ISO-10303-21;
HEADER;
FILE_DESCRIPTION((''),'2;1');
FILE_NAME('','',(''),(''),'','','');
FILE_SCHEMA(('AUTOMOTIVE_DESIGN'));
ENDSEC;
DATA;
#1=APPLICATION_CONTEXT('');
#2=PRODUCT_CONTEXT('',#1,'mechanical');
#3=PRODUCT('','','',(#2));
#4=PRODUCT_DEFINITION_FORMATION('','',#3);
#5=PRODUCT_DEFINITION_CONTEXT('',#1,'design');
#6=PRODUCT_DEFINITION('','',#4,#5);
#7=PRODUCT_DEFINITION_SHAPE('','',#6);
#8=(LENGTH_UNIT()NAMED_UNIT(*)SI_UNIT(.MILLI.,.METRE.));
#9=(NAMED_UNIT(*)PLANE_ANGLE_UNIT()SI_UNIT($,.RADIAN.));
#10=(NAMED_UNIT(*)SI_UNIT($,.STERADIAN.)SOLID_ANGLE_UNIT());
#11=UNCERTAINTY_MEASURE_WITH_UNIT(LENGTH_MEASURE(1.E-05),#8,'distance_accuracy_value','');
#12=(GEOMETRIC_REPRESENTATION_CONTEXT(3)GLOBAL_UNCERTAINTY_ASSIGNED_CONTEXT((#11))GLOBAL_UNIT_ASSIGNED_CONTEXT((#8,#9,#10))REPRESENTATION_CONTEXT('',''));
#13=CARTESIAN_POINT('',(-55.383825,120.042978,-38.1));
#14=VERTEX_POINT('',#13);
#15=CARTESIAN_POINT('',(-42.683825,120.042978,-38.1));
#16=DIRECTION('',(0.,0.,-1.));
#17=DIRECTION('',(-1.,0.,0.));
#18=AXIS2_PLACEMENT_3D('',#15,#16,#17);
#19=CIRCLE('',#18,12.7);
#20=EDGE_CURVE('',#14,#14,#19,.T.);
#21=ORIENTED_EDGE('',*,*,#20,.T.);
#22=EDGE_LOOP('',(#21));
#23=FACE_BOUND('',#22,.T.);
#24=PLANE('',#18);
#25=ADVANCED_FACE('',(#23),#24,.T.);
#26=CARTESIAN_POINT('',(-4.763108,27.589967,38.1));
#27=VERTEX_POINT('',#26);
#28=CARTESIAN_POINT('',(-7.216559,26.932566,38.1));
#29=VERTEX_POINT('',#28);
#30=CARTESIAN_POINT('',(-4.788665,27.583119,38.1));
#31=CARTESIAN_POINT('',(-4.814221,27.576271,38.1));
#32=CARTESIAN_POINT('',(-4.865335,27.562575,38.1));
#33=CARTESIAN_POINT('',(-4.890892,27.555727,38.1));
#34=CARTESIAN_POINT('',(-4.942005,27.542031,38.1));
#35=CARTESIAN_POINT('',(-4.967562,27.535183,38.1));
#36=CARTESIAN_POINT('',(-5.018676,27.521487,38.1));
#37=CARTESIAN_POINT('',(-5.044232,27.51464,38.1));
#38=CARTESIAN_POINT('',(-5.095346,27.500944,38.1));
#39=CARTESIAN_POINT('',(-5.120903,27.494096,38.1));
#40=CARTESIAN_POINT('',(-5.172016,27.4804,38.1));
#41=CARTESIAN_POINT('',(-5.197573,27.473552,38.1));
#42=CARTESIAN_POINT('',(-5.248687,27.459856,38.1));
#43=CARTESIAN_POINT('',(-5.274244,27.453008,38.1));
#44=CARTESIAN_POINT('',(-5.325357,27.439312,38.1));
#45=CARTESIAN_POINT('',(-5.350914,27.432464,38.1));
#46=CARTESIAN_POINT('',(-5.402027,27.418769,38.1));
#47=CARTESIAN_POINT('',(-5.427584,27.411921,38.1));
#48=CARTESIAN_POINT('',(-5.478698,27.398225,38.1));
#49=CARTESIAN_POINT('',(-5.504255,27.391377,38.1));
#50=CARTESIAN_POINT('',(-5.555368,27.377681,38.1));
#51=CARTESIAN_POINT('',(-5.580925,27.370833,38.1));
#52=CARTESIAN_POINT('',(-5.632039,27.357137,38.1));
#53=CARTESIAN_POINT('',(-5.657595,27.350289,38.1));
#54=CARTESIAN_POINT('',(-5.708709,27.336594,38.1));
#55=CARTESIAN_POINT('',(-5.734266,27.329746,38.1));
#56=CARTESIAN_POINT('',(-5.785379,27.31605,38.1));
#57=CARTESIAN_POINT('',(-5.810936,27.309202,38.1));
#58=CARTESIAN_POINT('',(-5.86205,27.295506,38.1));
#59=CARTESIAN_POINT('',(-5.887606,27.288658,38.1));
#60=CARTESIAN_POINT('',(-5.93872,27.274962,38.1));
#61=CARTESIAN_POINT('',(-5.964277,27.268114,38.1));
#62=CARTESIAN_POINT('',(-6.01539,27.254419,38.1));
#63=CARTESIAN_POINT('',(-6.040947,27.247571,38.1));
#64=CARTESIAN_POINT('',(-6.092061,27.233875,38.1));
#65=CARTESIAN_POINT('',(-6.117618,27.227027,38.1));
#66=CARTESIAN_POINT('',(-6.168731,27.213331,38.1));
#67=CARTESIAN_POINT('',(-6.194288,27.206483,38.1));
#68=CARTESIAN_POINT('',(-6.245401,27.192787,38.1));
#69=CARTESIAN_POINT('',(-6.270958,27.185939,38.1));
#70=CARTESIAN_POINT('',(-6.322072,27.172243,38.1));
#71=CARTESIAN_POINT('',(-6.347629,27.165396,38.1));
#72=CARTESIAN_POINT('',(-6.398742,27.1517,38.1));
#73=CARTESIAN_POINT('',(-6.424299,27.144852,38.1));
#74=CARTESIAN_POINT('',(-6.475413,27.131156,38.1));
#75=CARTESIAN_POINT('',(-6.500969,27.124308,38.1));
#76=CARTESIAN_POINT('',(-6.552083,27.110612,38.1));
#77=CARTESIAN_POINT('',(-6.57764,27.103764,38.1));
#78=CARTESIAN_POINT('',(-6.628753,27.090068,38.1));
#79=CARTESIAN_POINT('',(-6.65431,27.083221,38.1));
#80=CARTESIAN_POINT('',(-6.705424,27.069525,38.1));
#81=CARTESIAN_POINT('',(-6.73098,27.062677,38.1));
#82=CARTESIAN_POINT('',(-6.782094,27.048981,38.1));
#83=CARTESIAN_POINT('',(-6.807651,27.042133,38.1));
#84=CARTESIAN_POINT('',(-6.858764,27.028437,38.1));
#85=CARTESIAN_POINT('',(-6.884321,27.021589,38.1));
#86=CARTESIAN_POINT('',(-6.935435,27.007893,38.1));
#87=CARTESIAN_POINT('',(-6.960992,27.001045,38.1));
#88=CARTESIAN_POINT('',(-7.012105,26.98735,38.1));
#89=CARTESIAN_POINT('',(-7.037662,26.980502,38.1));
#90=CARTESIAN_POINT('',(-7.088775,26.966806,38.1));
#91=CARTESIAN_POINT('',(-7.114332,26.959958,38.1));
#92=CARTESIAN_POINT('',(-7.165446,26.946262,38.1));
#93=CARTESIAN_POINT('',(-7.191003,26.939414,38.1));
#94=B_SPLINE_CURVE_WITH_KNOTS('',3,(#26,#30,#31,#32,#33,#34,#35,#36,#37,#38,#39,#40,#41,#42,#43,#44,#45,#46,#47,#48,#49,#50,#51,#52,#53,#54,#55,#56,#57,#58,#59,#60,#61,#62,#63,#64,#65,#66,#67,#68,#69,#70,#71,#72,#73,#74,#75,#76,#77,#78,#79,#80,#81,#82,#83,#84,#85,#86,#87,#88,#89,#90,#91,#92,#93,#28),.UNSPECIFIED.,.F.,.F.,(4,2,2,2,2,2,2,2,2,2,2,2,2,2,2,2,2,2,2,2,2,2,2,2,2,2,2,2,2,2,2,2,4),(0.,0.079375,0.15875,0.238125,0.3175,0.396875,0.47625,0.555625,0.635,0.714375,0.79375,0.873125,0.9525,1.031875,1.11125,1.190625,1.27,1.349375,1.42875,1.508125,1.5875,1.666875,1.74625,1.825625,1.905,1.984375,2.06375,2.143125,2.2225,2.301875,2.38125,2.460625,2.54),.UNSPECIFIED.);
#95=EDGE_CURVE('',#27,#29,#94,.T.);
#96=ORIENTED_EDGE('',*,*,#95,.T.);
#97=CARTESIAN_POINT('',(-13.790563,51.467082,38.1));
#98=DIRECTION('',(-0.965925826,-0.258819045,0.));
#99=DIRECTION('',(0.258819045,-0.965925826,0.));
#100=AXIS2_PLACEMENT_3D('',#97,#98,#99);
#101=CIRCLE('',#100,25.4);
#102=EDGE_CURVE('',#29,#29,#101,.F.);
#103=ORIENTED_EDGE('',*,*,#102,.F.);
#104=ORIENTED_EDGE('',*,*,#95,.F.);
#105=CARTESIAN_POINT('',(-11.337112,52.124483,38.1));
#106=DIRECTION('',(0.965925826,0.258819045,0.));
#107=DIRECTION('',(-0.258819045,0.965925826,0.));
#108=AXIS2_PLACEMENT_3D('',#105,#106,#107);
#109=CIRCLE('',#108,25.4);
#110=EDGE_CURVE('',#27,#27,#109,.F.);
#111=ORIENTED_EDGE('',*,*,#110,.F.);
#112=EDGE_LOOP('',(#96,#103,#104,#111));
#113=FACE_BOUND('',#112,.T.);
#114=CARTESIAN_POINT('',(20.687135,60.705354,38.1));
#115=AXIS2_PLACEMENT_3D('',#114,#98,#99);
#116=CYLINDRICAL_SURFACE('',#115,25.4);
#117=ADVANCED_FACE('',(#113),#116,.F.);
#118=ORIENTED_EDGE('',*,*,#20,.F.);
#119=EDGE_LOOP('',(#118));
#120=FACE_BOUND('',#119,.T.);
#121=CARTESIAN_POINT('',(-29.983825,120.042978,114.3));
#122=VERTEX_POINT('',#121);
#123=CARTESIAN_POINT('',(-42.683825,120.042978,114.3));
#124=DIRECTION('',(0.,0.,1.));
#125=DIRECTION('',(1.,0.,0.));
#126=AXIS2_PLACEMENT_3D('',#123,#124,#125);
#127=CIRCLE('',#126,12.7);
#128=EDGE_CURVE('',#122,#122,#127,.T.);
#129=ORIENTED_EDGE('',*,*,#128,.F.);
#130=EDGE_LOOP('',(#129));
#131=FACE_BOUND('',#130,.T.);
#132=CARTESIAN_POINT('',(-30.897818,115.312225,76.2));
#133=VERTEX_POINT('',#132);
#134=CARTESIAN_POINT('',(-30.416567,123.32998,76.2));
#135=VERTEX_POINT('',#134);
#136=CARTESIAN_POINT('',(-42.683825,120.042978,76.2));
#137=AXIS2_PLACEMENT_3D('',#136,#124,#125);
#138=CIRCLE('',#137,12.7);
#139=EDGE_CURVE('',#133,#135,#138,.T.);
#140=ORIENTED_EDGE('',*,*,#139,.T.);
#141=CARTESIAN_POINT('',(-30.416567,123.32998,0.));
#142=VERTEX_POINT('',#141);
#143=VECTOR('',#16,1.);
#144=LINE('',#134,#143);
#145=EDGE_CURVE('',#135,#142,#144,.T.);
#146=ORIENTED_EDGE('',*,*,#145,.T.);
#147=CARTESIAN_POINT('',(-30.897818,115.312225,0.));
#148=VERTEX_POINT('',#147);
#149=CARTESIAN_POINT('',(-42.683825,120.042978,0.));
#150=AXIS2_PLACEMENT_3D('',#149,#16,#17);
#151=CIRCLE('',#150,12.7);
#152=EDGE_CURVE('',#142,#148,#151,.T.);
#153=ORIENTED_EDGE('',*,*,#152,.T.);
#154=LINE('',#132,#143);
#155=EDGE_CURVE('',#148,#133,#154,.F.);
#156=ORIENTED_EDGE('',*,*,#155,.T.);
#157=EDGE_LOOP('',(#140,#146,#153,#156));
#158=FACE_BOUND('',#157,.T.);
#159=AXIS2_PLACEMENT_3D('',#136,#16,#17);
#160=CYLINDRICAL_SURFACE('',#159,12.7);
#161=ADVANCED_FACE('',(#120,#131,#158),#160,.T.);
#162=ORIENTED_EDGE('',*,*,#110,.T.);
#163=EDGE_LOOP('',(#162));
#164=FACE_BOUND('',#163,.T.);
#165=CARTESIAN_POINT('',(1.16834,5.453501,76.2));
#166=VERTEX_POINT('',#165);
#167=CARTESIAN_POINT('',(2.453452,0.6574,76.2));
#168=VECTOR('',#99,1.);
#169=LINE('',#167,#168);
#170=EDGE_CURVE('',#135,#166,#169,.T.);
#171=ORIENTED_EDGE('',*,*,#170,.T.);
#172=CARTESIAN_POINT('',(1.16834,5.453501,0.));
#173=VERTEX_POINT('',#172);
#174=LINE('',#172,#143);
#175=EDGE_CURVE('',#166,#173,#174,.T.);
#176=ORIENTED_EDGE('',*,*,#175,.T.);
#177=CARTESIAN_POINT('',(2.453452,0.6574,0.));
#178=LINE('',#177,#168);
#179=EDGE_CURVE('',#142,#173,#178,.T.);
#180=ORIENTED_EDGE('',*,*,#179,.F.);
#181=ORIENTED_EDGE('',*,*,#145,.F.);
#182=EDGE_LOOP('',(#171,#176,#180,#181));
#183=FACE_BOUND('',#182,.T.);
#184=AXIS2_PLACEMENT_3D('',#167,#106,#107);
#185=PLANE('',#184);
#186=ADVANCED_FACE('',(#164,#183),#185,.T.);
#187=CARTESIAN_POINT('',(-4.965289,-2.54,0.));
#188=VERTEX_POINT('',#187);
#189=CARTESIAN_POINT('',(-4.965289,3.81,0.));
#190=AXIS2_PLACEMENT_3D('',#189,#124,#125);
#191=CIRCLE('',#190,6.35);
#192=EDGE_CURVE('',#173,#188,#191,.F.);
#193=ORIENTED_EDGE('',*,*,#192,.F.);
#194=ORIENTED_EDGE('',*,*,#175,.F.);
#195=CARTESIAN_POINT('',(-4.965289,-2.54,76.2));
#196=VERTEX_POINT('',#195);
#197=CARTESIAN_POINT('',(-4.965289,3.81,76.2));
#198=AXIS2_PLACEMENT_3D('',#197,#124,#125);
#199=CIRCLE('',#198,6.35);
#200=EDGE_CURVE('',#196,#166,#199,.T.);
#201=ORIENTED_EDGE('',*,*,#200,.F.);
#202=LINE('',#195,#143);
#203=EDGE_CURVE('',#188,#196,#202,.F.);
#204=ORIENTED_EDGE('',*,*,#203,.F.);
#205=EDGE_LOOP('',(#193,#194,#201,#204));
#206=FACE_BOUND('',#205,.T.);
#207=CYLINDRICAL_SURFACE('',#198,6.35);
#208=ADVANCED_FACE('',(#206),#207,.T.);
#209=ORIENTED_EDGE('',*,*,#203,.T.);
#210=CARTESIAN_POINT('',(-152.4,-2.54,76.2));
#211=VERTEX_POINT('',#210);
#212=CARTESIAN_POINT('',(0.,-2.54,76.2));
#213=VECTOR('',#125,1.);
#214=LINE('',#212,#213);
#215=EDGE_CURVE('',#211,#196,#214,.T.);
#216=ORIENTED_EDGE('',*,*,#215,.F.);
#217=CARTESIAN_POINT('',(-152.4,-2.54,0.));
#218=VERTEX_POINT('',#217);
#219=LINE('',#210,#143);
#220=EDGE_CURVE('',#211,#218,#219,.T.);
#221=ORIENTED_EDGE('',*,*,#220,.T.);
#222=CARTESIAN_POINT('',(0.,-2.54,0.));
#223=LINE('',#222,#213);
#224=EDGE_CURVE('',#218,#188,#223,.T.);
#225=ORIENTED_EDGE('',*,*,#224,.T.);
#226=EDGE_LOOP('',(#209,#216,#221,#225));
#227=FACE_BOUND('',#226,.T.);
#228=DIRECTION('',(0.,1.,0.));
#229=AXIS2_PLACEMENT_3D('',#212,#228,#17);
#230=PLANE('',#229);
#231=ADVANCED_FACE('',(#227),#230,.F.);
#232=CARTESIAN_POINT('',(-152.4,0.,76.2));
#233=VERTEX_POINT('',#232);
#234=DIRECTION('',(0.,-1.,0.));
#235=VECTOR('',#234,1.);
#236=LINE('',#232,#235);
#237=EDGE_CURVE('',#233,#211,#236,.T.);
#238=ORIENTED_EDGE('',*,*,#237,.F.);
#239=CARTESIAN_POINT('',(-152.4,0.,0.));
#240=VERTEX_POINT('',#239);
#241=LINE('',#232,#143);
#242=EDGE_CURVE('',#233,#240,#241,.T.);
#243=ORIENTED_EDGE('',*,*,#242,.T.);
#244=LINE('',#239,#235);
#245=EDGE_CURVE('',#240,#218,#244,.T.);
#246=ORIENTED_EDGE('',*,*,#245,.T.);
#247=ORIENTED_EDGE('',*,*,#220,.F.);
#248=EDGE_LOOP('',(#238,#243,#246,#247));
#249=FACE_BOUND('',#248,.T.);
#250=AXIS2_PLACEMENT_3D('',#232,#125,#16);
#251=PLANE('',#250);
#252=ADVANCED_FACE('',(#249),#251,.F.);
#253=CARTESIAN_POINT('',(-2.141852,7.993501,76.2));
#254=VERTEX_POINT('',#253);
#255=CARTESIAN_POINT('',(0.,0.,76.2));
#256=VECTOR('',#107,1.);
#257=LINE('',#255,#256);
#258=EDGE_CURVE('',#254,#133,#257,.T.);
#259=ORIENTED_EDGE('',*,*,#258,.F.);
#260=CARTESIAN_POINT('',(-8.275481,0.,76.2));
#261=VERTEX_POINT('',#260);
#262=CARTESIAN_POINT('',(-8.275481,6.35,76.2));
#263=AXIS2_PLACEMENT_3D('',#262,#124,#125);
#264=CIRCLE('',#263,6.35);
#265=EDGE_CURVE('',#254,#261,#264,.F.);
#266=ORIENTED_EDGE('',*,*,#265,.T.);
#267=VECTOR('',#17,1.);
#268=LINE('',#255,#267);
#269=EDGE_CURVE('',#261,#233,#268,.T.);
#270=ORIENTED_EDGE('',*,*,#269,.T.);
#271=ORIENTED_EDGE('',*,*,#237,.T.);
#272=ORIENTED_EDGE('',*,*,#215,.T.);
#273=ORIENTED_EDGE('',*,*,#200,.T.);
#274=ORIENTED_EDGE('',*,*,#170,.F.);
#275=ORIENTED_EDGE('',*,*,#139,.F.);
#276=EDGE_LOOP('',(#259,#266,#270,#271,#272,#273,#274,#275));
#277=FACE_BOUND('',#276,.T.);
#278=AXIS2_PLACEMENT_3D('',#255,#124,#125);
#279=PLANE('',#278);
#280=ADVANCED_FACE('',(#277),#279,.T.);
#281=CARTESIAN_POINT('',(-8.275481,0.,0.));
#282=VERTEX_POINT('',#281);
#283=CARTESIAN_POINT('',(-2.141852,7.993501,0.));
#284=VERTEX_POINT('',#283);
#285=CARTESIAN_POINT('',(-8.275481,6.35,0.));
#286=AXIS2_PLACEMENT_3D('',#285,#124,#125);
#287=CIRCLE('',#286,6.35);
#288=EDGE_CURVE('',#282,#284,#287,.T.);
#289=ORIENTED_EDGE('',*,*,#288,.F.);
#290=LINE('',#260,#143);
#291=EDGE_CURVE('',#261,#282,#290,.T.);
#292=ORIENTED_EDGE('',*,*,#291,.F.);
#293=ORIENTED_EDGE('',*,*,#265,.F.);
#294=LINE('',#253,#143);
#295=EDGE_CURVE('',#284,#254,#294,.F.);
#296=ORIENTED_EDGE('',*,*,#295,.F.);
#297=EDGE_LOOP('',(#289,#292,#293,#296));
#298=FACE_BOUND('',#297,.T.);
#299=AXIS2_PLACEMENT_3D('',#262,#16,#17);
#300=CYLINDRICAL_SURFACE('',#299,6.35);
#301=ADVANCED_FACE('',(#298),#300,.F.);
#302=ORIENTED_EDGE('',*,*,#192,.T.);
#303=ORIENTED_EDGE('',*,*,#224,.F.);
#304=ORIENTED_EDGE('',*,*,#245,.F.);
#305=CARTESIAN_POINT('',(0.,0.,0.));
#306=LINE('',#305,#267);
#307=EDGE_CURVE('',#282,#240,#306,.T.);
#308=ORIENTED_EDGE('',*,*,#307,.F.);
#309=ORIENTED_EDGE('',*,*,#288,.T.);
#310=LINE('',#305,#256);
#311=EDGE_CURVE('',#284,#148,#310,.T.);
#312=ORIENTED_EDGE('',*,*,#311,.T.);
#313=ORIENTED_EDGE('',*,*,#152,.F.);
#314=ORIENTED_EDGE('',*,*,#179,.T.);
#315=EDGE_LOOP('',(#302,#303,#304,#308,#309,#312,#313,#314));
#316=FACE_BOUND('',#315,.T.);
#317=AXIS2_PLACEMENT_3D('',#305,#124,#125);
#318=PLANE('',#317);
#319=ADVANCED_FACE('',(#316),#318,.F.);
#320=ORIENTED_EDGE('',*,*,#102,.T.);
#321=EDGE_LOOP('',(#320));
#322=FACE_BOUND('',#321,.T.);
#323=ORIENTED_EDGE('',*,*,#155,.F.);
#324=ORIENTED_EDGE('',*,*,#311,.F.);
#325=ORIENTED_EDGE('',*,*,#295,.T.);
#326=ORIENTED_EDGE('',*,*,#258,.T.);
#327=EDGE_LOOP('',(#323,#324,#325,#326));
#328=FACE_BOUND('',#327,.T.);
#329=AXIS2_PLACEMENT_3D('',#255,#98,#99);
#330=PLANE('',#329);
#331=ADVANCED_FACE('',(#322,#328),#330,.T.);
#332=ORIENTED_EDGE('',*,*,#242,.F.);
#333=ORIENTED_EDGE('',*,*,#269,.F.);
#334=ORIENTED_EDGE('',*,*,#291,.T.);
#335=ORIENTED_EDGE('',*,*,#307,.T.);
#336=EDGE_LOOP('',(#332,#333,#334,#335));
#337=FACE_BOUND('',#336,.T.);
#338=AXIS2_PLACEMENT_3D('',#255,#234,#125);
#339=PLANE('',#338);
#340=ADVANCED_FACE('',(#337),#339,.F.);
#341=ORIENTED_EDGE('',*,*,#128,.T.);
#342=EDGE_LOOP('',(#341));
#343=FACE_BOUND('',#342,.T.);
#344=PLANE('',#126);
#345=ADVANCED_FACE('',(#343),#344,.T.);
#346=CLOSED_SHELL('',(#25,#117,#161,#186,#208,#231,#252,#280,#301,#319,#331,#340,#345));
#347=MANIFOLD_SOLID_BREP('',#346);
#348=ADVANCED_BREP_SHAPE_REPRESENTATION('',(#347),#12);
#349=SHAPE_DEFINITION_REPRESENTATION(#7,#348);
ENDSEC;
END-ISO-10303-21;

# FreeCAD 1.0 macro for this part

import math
import FreeCAD as App
import Part
import Sketcher
from FreeCAD import Vector
Q = App.Units.Quantity


def edges_at(feature, points):
    """Names of the edges that pass closest to the given points."""
    edges = feature.Shape.Edges
    near = lambda p: min(range(len(edges)), key=lambda i: edges[i].distToShape(Part.Vertex(*p))[0])
    return sorted({f"Edge{near(p) + 1}" for p in points})

doc = App.newDocument("Part")
body = doc.addObject("PartDesign::Body", "Body")

# Sketch on XY plane
sketch1 = body.newObject("Sketcher::SketchObject", "Sketch")
sketch1.AttachmentSupport = (doc.getObject("XY_Plane"), [""])
sketch1.MapMode = "FlatFace"
sketch1.addGeometry([
    Part.LineSegment(Vector(-152.4, -2.5, 0), Vector(3.3, -2.5, 0)),  # 0
    Part.LineSegment(Vector(3.3, -2.5, 0), Vector(-30.4, 123.3, 0)),  # 1
    Part.ArcOfCircle(Part.Circle(Vector(-42.7, 120, 0), Vector(0, 0, 1), 12.7), math.radians(15), math.radians(338)),  # 2
    Part.LineSegment(Vector(-30.9, 115.3, 0), Vector(0, 0, 0)),  # 3
    Part.LineSegment(Vector(0, 0, 0), Vector(-152.4, 0, 0)),  # 4
    Part.LineSegment(Vector(-152.4, 0, 0), Vector(-152.4, -2.5, 0)),  # 5
], False)
sketch1.addConstraint([
    Sketcher.Constraint("Coincident", 0, 2, 1, 1),
    Sketcher.Constraint("Tangent", 1, 2, 2, 1),
    Sketcher.Constraint("Coincident", 2, 2, 3, 1),
    Sketcher.Constraint("Coincident", 3, 2, 4, 1),
    Sketcher.Constraint("Coincident", 4, 2, 5, 1),
    Sketcher.Constraint("Coincident", 5, 2, 0, 1),
    Sketcher.Constraint("Horizontal", 0),
    Sketcher.Constraint("Horizontal", 4),
    Sketcher.Constraint("Vertical", 5),
    Sketcher.Constraint("Coincident", 3, 2, -1, 1),
    Sketcher.Constraint("Parallel", 1, 3),
    Sketcher.Constraint("Radius", 2, Q("0.5 in")),
    Sketcher.Constraint("DistanceX", 4, 2, 4, 1, Q("6 in")),
    Sketcher.Constraint("DistanceY", 5, 2, 5, 1, Q("0.1 in")),
    Sketcher.Constraint("Angle", 1, Q("105 deg")),
    Sketcher.Constraint("Distance", 3, Q("4.7 in")),
    Sketcher.Constraint("DistanceX", 0, 1, 0, 2, 155.710192),
])
pad1 = body.newObject("PartDesign::Pad", "Pad")
pad1.Profile = sketch1
pad1.Length = Q("3 in")
doc.recompute()

fillet = body.newObject("PartDesign::Fillet", "Fillet")
fillet.Base = (pad1, edges_at(pad1, [(0, 0, 38.1)]))
fillet.Radius = Q("0.25 in")
doc.recompute()

fillet2 = body.newObject("PartDesign::Fillet", "Fillet001")
fillet2.Base = (fillet, edges_at(fillet, [(3.31, -2.54, 38.1)]))
fillet2.Radius = Q("0.25 in")

# Sketch on an angled plane
sketch2 = body.newObject("Sketcher::SketchObject", "Sketch001")
sketch2.Placement = App.Placement(Vector(2.453452, 0.6574, 0), App.Rotation(Vector(0, 0, -1), Vector(-0.258819045, 0.965925826, 0), Vector(0.965925826, 0.258819045, 0), "ZXY"))
sketch2.addGeometry(Part.Circle(Vector(-38, 53, 0), Vector(0, 0, 1), 25), False)
sketch2.addConstraint([
    Sketcher.Constraint("Diameter", 0, Q("2 in")),
    Sketcher.Constraint("DistanceX", 0, 3, -1, 1, Q("1.5 in")),
    Sketcher.Constraint("DistanceY", -1, 1, 0, 3, 53.282644),
])
pocket1 = body.newObject("PartDesign::Pocket", "Pocket")
pocket1.Profile = sketch2
pocket1.Type = "UpToFirst"

# Sketch on an angled plane
sketch3 = body.newObject("Sketcher::SketchObject", "Sketch002")
sketch3.Placement = App.Placement(Vector(2.453452, 0.6574, 0), App.Rotation(Vector(0, 0, -1), Vector(-0.258819045, 0.965925826, 0), Vector(0.965925826, 0.258819045, 0), "ZXY"))
sketch3.addGeometry(Part.Circle(Vector(-38, 53, 0), Vector(0, 0, 1), 25), False)
sketch3.addConstraint([
    Sketcher.Constraint("Diameter", 0, Q("2 in")),
    Sketcher.Constraint("DistanceX", 0, 3, -1, 1, Q("1.5 in")),
    Sketcher.Constraint("DistanceY", -1, 1, 0, 3, 53.282644),
])
pocket2 = body.newObject("PartDesign::Pocket", "Pocket001")
pocket2.Profile = sketch3
pocket2.Length = 218.330696
pocket2.Reversed = True

# Sketch on XY plane
sketch4 = body.newObject("Sketcher::SketchObject", "Sketch003")
sketch4.AttachmentSupport = (doc.getObject("XY_Plane"), [""])
sketch4.MapMode = "FlatFace"
sketch4.AttachmentOffset = App.Placement(Vector(0, 0, -1.5 * 25.4), App.Rotation())
sketch4.addGeometry(Part.Circle(Vector(-43, 120, 0), Vector(0, 0, 1), 13), False)
sketch4.addConstraint([
    Sketcher.Constraint("Diameter", 0, Q("1 in")),
    Sketcher.Constraint("DistanceY", -1, 1, 0, 3, 120.042978),
    Sketcher.Constraint("DistanceX", 0, 3, -1, 1, 42.683825),
])
pad2 = body.newObject("PartDesign::Pad", "Pad001")
pad2.Profile = sketch4
pad2.Length = Q("1.5 in")

# Sketch on XY plane
sketch5 = body.newObject("Sketcher::SketchObject", "Sketch004")
sketch5.AttachmentSupport = (doc.getObject("XY_Plane"), [""])
sketch5.MapMode = "FlatFace"
sketch5.AttachmentOffset = App.Placement(Vector(0, 0, 3 * 25.4), App.Rotation())
sketch5.addGeometry(Part.Circle(Vector(-43, 120, 0), Vector(0, 0, 1), 13), False)
sketch5.addConstraint([
    Sketcher.Constraint("Diameter", 0, Q("1 in")),
    Sketcher.Constraint("DistanceY", -1, 1, 0, 3, 120.042978),
    Sketcher.Constraint("DistanceX", 0, 3, -1, 1, 42.683825),
])
pad3 = body.newObject("PartDesign::Pad", "Pad002")
pad3.Profile = sketch5
pad3.Length = Q("1.5 in")

doc.recompute()
